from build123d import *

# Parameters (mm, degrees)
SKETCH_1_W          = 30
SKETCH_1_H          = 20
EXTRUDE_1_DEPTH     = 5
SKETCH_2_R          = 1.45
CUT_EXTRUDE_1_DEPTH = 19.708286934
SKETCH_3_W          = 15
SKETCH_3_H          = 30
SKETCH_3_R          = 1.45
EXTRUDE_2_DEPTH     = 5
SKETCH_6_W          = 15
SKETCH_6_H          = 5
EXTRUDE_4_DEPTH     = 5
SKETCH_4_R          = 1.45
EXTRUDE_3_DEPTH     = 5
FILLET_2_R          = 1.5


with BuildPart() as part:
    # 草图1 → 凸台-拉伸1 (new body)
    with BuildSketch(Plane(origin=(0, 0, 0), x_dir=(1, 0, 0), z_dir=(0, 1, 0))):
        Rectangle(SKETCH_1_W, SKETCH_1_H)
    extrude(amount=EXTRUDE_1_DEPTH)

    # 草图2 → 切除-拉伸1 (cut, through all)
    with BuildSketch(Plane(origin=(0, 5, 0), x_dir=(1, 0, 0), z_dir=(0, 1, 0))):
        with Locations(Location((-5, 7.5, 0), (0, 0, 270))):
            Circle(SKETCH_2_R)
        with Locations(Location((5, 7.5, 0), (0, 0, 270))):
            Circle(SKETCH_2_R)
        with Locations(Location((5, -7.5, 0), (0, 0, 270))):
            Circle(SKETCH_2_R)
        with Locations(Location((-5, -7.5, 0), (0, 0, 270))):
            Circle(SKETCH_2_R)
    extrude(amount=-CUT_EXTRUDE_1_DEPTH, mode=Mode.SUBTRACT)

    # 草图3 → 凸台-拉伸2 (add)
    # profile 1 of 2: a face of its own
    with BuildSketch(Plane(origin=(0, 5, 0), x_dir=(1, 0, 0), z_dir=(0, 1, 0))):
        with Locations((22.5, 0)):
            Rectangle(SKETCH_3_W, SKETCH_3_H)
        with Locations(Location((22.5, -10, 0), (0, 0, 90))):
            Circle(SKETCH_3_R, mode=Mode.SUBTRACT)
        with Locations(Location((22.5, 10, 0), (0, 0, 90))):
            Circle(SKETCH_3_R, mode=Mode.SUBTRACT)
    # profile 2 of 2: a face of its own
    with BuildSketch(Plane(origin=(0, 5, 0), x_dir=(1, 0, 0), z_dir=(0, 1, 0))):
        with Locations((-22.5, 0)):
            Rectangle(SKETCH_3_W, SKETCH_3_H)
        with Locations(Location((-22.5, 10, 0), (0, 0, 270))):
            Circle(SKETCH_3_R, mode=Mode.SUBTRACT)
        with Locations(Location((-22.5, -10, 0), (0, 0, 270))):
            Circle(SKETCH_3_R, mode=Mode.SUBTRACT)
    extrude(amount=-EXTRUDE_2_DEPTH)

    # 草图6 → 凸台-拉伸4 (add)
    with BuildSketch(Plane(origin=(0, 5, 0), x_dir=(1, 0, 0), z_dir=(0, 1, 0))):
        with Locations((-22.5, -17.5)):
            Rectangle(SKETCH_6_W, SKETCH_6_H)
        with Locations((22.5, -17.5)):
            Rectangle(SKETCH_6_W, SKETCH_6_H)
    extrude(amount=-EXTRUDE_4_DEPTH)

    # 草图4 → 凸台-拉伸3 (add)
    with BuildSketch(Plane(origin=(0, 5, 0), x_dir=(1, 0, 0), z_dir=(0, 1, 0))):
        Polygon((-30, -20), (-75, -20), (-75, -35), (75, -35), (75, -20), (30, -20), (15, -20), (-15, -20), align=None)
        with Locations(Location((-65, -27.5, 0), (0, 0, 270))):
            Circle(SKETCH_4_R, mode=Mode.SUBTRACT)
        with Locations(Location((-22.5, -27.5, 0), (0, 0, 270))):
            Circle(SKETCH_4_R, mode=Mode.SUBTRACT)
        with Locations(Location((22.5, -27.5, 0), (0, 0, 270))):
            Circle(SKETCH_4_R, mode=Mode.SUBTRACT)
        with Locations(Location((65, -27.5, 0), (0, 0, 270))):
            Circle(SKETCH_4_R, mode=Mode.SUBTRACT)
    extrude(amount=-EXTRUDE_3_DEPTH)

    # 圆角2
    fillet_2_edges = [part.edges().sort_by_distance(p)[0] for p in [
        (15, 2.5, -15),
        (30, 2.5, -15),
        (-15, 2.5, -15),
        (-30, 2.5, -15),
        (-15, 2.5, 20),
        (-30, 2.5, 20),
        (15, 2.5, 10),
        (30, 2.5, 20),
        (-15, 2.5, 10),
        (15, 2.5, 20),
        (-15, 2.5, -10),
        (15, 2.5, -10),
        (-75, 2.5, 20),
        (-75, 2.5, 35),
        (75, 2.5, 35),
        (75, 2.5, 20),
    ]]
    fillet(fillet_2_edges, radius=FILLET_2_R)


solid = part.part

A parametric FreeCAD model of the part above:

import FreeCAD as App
import Part
import Sketcher


def edges_at(feature, points):
    """Names of the edges that pass closest to the given points."""
    edges = feature.Shape.Edges
    near = lambda p: min(range(len(edges)), key=lambda i: edges[i].distToShape(Part.Vertex(*p))[0])
    return sorted({f"Edge{near(p) + 1}" for p in points})


def add_polygon(sketch, points):
    """Adds a closed chain of lines whose ends are joined by coincident constraints."""
    first, n = sketch.GeometryCount, len(points)
    for a, b in zip(points, points[1:] + points[:1]):
        sketch.addGeometry(Part.LineSegment(App.Vector(*a, 0), App.Vector(*b, 0)), False)
    for i in range(n):
        sketch.addConstraint(Sketcher.Constraint("Coincident", first + i, 2, first + (i + 1) % n, 1))

doc = App.newDocument("Part")
body = doc.addObject("PartDesign::Body", "Body")

sketch1 = body.newObject("Sketcher::SketchObject", "Sketch")
sketch1.AttachmentSupport = (doc.getObject("XZ_Plane"), [""])
sketch1.MapMode = "FlatFace"
add_polygon(sketch1, [(-15, -10), (-15, 10), (15, 10), (15, -10)])
sketch1.addConstraint(Sketcher.Constraint("Vertical", 0))
sketch1.addConstraint(Sketcher.Constraint("Horizontal", 1))
sketch1.addConstraint(Sketcher.Constraint("Vertical", 2))
sketch1.addConstraint(Sketcher.Constraint("Horizontal", 3))
sketch1.addConstraint(Sketcher.Constraint("Symmetric", 0, 2, 2, 2, -1, 1))
sketch1.addConstraint(Sketcher.Constraint("DistanceX", 1, 1, 1, 2, 30.0))
sketch1.addConstraint(Sketcher.Constraint("DistanceY", 0, 1, 0, 2, 20.0))
pad1 = body.newObject("PartDesign::Pad", "Pad")
pad1.Profile = sketch1
pad1.Length = 5
pad1.Reversed = True

sketch2 = body.newObject("Sketcher::SketchObject", "Sketch001")
sketch2.AttachmentSupport = (doc.getObject("XZ_Plane"), [""])
sketch2.MapMode = "FlatFace"
sketch2.AttachmentOffset = App.Placement(App.Vector(0, 0, -5), App.Rotation())
sketch2.addGeometry(Part.Circle(App.Vector(-5, -7.5, 0), App.Vector(0, 0, 1), 1.4), False)
sketch2.addGeometry(Part.Circle(App.Vector(5, -7.5, 0), App.Vector(0, 0, 1), 1.4), False)
sketch2.addGeometry(Part.Circle(App.Vector(5, 7.5, 0), App.Vector(0, 0, 1), 1.4), False)
sketch2.addGeometry(Part.Circle(App.Vector(-5, 7.5, 0), App.Vector(0, 0, 1), 1.4), False)
sketch2.addConstraint(Sketcher.Constraint("Equal", 0, 1))
sketch2.addConstraint(Sketcher.Constraint("Equal", 1, 2))
sketch2.addConstraint(Sketcher.Constraint("Equal", 2, 3))
sketch2.addConstraint(Sketcher.Constraint("Symmetric", 0, 3, 2, 3, -1, 1))
sketch2.addConstraint(Sketcher.Constraint("Symmetric", 1, 3, 3, 3, -1, 1))
sketch2.addConstraint(Sketcher.Constraint("Symmetric", 0, 3, 1, 3, -2))
sketch2.addConstraint(Sketcher.Constraint("Diameter", 0, 2.9))
sketch2.addConstraint(Sketcher.Constraint("DistanceX", 0, 3, -1, 1, 5.0))
sketch2.addConstraint(Sketcher.Constraint("DistanceY", 1, 3, 2, 3, 15.0))
pocket1 = body.newObject("PartDesign::Pocket", "Pocket")
pocket1.Profile = sketch2
pocket1.Type = "ThroughAll"
pocket1.Reversed = True

sketch3 = body.newObject("Sketcher::SketchObject", "Sketch002")
sketch3.AttachmentSupport = (doc.getObject("XZ_Plane"), [""])
sketch3.MapMode = "FlatFace"
sketch3.AttachmentOffset = App.Placement(App.Vector(0, 0, -5), App.Rotation())
add_polygon(sketch3, [(15, -15), (15, 15), (30, 15), (30, -15)])
sketch3.addGeometry(Part.Circle(App.Vector(22.5, 10, 0), App.Vector(0, 0, 1), 1.4), False)
sketch3.addGeometry(Part.Circle(App.Vector(22.5, -10, 0), App.Vector(0, 0, 1), 1.4), False)
add_polygon(sketch3, [(-30, -15), (-30, 15), (-15, 15), (-15, -15)])
sketch3.addGeometry(Part.Circle(App.Vector(-22.5, 10, 0), App.Vector(0, 0, 1), 1.4), False)
sketch3.addGeometry(Part.Circle(App.Vector(-22.5, -10, 0), App.Vector(0, 0, 1), 1.4), False)
sketch3.addConstraint(Sketcher.Constraint("Vertical", 0))
sketch3.addConstraint(Sketcher.Constraint("Horizontal", 1))
sketch3.addConstraint(Sketcher.Constraint("Vertical", 2))
sketch3.addConstraint(Sketcher.Constraint("Horizontal", 3))
sketch3.addConstraint(Sketcher.Constraint("Vertical", 6))
sketch3.addConstraint(Sketcher.Constraint("Horizontal", 7))
sketch3.addConstraint(Sketcher.Constraint("Vertical", 8))
sketch3.addConstraint(Sketcher.Constraint("Horizontal", 9))
sketch3.addConstraint(Sketcher.Constraint("Equal", 4, 5))
sketch3.addConstraint(Sketcher.Constraint("Equal", 5, 10))
sketch3.addConstraint(Sketcher.Constraint("Equal", 10, 11))
sketch3.addConstraint(Sketcher.Constraint("Symmetric", 5, 3, 10, 3, -1, 1))
sketch3.addConstraint(Sketcher.Constraint("Symmetric", 4, 3, 11, 3, -1, 1))
sketch3.addConstraint(Sketcher.Constraint("Symmetric", 2, 2, 6, 2, -1, 1))
sketch3.addConstraint(Sketcher.Constraint("Symmetric", 0, 2, 8, 2, -1, 1))
sketch3.addConstraint(Sketcher.Constraint("Symmetric", 4, 3, 10, 3, -2))
sketch3.addConstraint(Sketcher.Constraint("Horizontal", 1, 2, 6, 2))
sketch3.addConstraint(Sketcher.Constraint("Diameter", 4, 2.9))
sketch3.addConstraint(Sketcher.Constraint("DistanceX", 1, 1, 1, 2, 15.0))
sketch3.addConstraint(Sketcher.Constraint("DistanceY", 0, 1, 0, 2, 30.0))
sketch3.addConstraint(Sketcher.Constraint("DistanceY", -1, 1, 4, 3, 10.0))
sketch3.addConstraint(Sketcher.Constraint("DistanceX", -1, 1, 0, 2, 15.0))
sketch3.addConstraint(Sketcher.Constraint("DistanceX", 10, 3, 4, 3, 45.0))
pad2 = body.newObject("PartDesign::Pad", "Pad001")
pad2.Profile = sketch3
pad2.Length = 5

sketch4 = body.newObject("Sketcher::SketchObject", "Sketch003")
sketch4.AttachmentSupport = (doc.getObject("XZ_Plane"), [""])
sketch4.MapMode = "FlatFace"
sketch4.AttachmentOffset = App.Placement(App.Vector(0, 0, -5), App.Rotation())
add_polygon(sketch4, [(-30, 15), (-30, 20), (-15, 20), (-15, 15)])
add_polygon(sketch4, [(15, 15), (15, 20), (30, 20), (30, 15)])
sketch4.addConstraint(Sketcher.Constraint("Vertical", 0))
sketch4.addConstraint(Sketcher.Constraint("Horizontal", 1))
sketch4.addConstraint(Sketcher.Constraint("Vertical", 2))
sketch4.addConstraint(Sketcher.Constraint("Horizontal", 3))
sketch4.addConstraint(Sketcher.Constraint("Vertical", 4))
sketch4.addConstraint(Sketcher.Constraint("Horizontal", 5))
sketch4.addConstraint(Sketcher.Constraint("Vertical", 6))
sketch4.addConstraint(Sketcher.Constraint("Horizontal", 7))
sketch4.addConstraint(Sketcher.Constraint("Symmetric", 1, 2, 4, 2, -2))
sketch4.addConstraint(Sketcher.Constraint("Symmetric", 3, 2, 6, 2, -2))
sketch4.addConstraint(Sketcher.Constraint("DistanceX", 1, 1, 1, 2, 15.0))
sketch4.addConstraint(Sketcher.Constraint("DistanceY", 0, 1, 0, 2, 5.0))
sketch4.addConstraint(Sketcher.Constraint("DistanceX", 0, 2, -1, 1, 30.0))
sketch4.addConstraint(Sketcher.Constraint("DistanceY", -1, 1, 0, 2, 20.0))
pad3 = body.newObject("PartDesign::Pad", "Pad002")
pad3.Profile = sketch4
pad3.Length = 5

sketch5 = body.newObject("Sketcher::SketchObject", "Sketch004")
sketch5.AttachmentSupport = (doc.getObject("XZ_Plane"), [""])
sketch5.MapMode = "FlatFace"
sketch5.AttachmentOffset = App.Placement(App.Vector(0, 0, -5), App.Rotation())
add_polygon(sketch5, [(-75, 20), (-75, 35), (75, 35), (75, 20)])
sketch5.addGeometry(Part.Circle(App.Vector(-65, 27.5, 0), App.Vector(0, 0, 1), 1.4), False)
sketch5.addGeometry(Part.Circle(App.Vector(-22.5, 27.5, 0), App.Vector(0, 0, 1), 1.4), False)
sketch5.addGeometry(Part.Circle(App.Vector(22.5, 27.5, 0), App.Vector(0, 0, 1), 1.4), False)
sketch5.addGeometry(Part.Circle(App.Vector(65, 27.5, 0), App.Vector(0, 0, 1), 1.4), False)
sketch5.addConstraint(Sketcher.Constraint("Vertical", 0))
sketch5.addConstraint(Sketcher.Constraint("Horizontal", 1))
sketch5.addConstraint(Sketcher.Constraint("Vertical", 2))
sketch5.addConstraint(Sketcher.Constraint("Horizontal", 3))
sketch5.addConstraint(Sketcher.Constraint("Equal", 4, 5))
sketch5.addConstraint(Sketcher.Constraint("Equal", 5, 6))
sketch5.addConstraint(Sketcher.Constraint("Equal", 6, 7))
sketch5.addConstraint(Sketcher.Constraint("Symmetric", 5, 3, 6, 3, -2))
sketch5.addConstraint(Sketcher.Constraint("Symmetric", 4, 3, 7, 3, -2))
sketch5.addConstraint(Sketcher.Constraint("Horizontal", 4, 3, 5, 3))
sketch5.addConstraint(Sketcher.Constraint("Diameter", 4, 2.9))
sketch5.addConstraint(Sketcher.Constraint("DistanceX", 1, 1, 1, 2, 150.0))
sketch5.addConstraint(Sketcher.Constraint("DistanceY", 0, 1, 0, 2, 15.0))
sketch5.addConstraint(Sketcher.Constraint("DistanceX", 4, 3, -1, 1, 65.0))
sketch5.addConstraint(Sketcher.Constraint("DistanceX", 0, 2, -1, 1, 75.0))
sketch5.addConstraint(Sketcher.Constraint("DistanceY", -1, 1, 0, 2, 35.0))
sketch5.addConstraint(Sketcher.Constraint("DistanceX", 5, 3, 6, 3, 45.0))
sketch5.addConstraint(Sketcher.Constraint("DistanceY", -1, 1, 4, 3, 27.5))
pad4 = body.newObject("PartDesign::Pad", "Pad003")
pad4.Profile = sketch5
pad4.Length = 5
doc.recompute()

fillet = body.newObject("PartDesign::Fillet", "Fillet")
fillet.Base = (pad4, edges_at(pad4, [
    (15, 2.5, -15),
    (30, 2.5, -15),
    (-15, 2.5, -15),
    (-30, 2.5, -15),
    (-15, 2.5, 20),
    (-30, 2.5, 20),
    (15, 2.5, 10),
    (30, 2.5, 20),
    (-15, 2.5, 10),
    (15, 2.5, 20),
    (-15, 2.5, -10),
    (15, 2.5, -10),
    (-75, 2.5, 20),
    (-75, 2.5, 35),
    (75, 2.5, 35),
    (75, 2.5, 20),
]))
fillet.Radius = 1.5

doc.recompute()
